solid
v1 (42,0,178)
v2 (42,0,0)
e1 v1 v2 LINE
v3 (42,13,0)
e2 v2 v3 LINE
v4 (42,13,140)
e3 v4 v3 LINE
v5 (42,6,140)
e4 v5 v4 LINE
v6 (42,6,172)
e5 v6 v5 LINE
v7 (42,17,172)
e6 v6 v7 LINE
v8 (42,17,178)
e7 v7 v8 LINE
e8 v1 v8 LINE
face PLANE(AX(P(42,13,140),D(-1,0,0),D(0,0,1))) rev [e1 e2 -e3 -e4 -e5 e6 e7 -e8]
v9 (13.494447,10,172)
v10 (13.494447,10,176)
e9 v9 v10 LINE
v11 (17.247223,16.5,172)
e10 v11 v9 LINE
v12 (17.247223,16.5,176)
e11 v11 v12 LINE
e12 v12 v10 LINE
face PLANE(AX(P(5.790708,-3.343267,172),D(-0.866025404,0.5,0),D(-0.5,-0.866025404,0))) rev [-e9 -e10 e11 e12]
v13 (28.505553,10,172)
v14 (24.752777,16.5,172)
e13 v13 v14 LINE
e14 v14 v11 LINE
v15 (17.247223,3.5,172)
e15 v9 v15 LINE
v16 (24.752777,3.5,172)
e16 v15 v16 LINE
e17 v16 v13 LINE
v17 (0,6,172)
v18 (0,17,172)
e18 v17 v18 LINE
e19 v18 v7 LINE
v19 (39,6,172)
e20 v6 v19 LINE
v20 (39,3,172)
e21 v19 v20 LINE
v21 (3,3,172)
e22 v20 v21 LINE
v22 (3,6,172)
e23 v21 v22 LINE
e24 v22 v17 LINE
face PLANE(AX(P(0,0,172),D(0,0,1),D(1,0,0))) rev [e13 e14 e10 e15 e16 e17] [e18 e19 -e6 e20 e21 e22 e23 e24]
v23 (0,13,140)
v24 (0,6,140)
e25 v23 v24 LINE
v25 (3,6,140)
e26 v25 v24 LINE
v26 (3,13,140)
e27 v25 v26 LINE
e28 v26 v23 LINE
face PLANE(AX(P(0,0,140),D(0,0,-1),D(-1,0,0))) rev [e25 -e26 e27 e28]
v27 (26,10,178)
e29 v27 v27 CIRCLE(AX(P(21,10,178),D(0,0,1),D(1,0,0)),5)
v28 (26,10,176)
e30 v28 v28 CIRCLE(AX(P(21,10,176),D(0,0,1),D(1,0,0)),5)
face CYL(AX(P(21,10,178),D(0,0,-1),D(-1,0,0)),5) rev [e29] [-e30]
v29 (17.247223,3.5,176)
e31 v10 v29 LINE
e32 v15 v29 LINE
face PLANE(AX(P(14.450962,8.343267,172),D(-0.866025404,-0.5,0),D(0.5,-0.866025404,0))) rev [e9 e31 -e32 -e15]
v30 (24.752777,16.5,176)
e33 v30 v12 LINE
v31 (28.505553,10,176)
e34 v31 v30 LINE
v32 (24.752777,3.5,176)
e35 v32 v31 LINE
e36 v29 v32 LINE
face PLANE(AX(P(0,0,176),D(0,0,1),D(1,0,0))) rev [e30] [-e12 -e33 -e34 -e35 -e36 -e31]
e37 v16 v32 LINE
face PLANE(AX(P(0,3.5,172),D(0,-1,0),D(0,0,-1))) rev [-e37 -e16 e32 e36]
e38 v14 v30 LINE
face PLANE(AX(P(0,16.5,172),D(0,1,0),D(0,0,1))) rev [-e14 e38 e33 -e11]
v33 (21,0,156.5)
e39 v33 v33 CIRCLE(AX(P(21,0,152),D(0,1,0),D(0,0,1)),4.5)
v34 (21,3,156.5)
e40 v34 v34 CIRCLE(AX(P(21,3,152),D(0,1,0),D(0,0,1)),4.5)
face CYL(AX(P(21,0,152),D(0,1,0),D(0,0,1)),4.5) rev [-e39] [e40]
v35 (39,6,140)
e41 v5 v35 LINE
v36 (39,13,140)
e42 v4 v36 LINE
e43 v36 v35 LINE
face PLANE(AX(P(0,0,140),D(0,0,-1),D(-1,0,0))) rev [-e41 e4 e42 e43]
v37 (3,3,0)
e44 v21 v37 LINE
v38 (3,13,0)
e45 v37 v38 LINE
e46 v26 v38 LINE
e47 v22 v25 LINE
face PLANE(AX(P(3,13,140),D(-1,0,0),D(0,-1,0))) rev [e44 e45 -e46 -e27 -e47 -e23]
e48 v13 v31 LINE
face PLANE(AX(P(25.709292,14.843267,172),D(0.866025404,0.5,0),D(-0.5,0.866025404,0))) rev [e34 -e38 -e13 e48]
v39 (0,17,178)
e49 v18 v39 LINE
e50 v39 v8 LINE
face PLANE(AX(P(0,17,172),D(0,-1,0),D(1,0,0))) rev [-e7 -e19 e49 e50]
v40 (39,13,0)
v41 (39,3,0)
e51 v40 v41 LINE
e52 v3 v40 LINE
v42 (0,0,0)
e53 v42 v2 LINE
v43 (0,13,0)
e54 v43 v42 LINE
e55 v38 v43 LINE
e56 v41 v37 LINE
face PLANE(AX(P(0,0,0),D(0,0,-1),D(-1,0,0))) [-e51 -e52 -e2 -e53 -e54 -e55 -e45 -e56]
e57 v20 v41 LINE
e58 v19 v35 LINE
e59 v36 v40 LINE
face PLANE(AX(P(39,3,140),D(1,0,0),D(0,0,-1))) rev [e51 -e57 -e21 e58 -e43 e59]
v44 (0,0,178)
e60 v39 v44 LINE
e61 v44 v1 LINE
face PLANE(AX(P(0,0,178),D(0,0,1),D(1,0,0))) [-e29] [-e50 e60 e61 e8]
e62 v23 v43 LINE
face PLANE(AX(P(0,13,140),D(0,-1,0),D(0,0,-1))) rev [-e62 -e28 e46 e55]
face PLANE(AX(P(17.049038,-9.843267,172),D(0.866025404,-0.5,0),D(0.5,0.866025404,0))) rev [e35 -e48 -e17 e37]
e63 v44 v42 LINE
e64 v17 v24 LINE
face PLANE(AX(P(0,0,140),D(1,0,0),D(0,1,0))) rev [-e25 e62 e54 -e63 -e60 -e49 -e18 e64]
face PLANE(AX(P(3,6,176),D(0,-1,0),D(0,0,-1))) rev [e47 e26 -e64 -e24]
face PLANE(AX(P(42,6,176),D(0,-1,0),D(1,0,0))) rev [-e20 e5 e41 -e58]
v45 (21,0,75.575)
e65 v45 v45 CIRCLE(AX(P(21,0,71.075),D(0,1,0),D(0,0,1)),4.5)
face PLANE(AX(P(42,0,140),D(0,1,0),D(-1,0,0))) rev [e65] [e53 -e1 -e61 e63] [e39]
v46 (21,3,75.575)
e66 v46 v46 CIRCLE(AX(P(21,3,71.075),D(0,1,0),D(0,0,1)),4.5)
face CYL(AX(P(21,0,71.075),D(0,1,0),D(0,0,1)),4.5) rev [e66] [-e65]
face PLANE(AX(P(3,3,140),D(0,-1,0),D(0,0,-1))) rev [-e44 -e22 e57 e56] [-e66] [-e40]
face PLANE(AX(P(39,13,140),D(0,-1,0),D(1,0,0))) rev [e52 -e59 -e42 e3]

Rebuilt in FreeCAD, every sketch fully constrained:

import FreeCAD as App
import Part
import Sketcher
from FreeCAD import Vector
Q = App.Units.Quantity


def add_polygon(sketch, points):
    """Adds a closed chain of lines whose ends are joined by coincident constraints."""
    first, n = sketch.GeometryCount, len(points)
    for a, b in zip(points, points[1:] + points[:1]):
        sketch.addGeometry(Part.LineSegment(App.Vector(*a, 0), App.Vector(*b, 0)), False)
    for i in range(n):
        sketch.addConstraint(Sketcher.Constraint("Coincident", first + i, 2, first + (i + 1) % n, 1))

doc = App.newDocument("Part")
body = doc.addObject("PartDesign::Body", "Body")

# Sketch on XY plane
sketch1 = body.newObject("Sketcher::SketchObject", "Sketch")
sketch1.AttachmentSupport = (doc.getObject("XY_Plane"), [""])
sketch1.MapMode = "FlatFace"
add_polygon(sketch1, [(0, 13), (0, 0), (42, 0), (42, 13), (39, 13), (39, 3), (3, 3), (3, 13)])  # lines 0-7
sketch1.addConstraint([
    Sketcher.Constraint("Vertical", 0),
    Sketcher.Constraint("Horizontal", 1),
    Sketcher.Constraint("Vertical", 2),
    Sketcher.Constraint("Horizontal", 3),
    Sketcher.Constraint("Vertical", 4),
    Sketcher.Constraint("Horizontal", 5),
    Sketcher.Constraint("Vertical", 6),
    Sketcher.Constraint("Horizontal", 7),
    Sketcher.Constraint("Coincident", 0, 2, -1, 1),
    Sketcher.Constraint("Horizontal", 3, 2, 6, 2),
    Sketcher.Constraint("Equal", 3, 7),
    Sketcher.Constraint("DistanceX", 1, 1, 1, 2, Q("42 mm")),
    Sketcher.Constraint("DistanceX", 3, 2, 3, 1, Q("3 mm")),
    Sketcher.Constraint("DistanceY", 0, 2, 0, 1, Q("13 mm")),
    Sketcher.Constraint("DistanceY", 4, 2, 4, 1, Q("10 mm")),
])
pad1 = body.newObject("PartDesign::Pad", "Pad")
pad1.Profile = sketch1
pad1.Length = 140

# Sketch on XY plane
sketch2 = body.newObject("Sketcher::SketchObject", "Sketch001")
sketch2.AttachmentSupport = (doc.getObject("XY_Plane"), [""])
sketch2.MapMode = "FlatFace"
sketch2.AttachmentOffset = App.Placement(Vector(0, 0, 140), App.Rotation())
add_polygon(sketch2, [(0, 0), (42, 0), (42, 6), (39, 6), (39, 3), (3, 3), (3, 6), (0, 6)])  # lines 0-7
sketch2.addConstraint([
    Sketcher.Constraint("Horizontal", 0),
    Sketcher.Constraint("Vertical", 1),
    Sketcher.Constraint("Horizontal", 2),
    Sketcher.Constraint("Vertical", 3),
    Sketcher.Constraint("Horizontal", 4),
    Sketcher.Constraint("Vertical", 5),
    Sketcher.Constraint("Horizontal", 6),
    Sketcher.Constraint("Vertical", 7),
    Sketcher.Constraint("Coincident", 7, 2, -1, 1),
    Sketcher.Constraint("Horizontal", 2, 2, 5, 2),
    Sketcher.Constraint("Equal", 2, 6),
    Sketcher.Constraint("Equal", 6, 3),
    Sketcher.Constraint("DistanceX", 0, 1, 0, 2, Q("42 mm")),
    Sketcher.Constraint("DistanceX", 2, 2, 2, 1, Q("3 mm")),
    Sketcher.Constraint("DistanceY", 1, 1, 1, 2, Q("6 mm")),
])
pad2 = body.newObject("PartDesign::Pad", "Pad001")
pad2.Profile = sketch2
pad2.Length = 36

# Sketch on XY plane
sketch3 = body.newObject("Sketcher::SketchObject", "Sketch002")
sketch3.AttachmentSupport = (doc.getObject("XY_Plane"), [""])
sketch3.MapMode = "FlatFace"
sketch3.AttachmentOffset = App.Placement(Vector(0, 0, 176), App.Rotation())
add_polygon(sketch3, [(0, 17), (0, 6), (3, 6), (3, 3), (39, 3), (39, 6), (42, 6), (42, 17)])  # lines 0-7
add_polygon(sketch3, [(17.2, 16.5), (24.8, 16.5), (28.5, 10), (24.8, 3.5), (17.2, 3.5), (13.5, 10)])  # lines 8-13
sketch3.addConstraint([
    Sketcher.Constraint("Vertical", 0),
    Sketcher.Constraint("Horizontal", 1),
    Sketcher.Constraint("Vertical", 2),
    Sketcher.Constraint("Horizontal", 3),
    Sketcher.Constraint("Vertical", 4),
    Sketcher.Constraint("Horizontal", 5),
    Sketcher.Constraint("Vertical", 6),
    Sketcher.Constraint("Horizontal", 7),
    Sketcher.Constraint("Horizontal", 8),
    Sketcher.Constraint("Horizontal", 11),
    Sketcher.Constraint("PointOnObject", 0, 2, -2),
    Sketcher.Constraint("Parallel", 9, 12),
    Sketcher.Constraint("Parallel", 10, 13),
    Sketcher.Constraint("Horizontal", 1, 2, 4, 2),
    Sketcher.Constraint("Horizontal", 9, 2, 12, 2),
    Sketcher.Constraint("Vertical", 8, 2, 10, 2),
    Sketcher.Constraint("Vertical", 11, 2, 13, 2),
    Sketcher.Constraint("Equal", 1, 5),
    Sketcher.Constraint("Equal", 5, 2),
    Sketcher.Constraint("DistanceX", 1, 1, 1, 2, Q("3 mm")),
    Sketcher.Constraint("DistanceX", 3, 1, 3, 2, Q("36 mm")),
    Sketcher.Constraint("DistanceY", 0, 2, 0, 1, Q("11 mm")),
    Sketcher.Constraint("Angle", 9, Q("-60 deg")),
    Sketcher.Constraint("DistanceY", -1, 1, 0, 2, Q("6 mm")),
    Sketcher.Constraint("DistanceY", -1, 1, 9, 2, Q("10 mm")),
    Sketcher.Constraint("DistanceY", 10, 2, 8, 2, Q("13 mm")),
    Sketcher.Constraint("DistanceX", 8, 1, 8, 2, Q("7.505553 mm")),
    Sketcher.Constraint("DistanceX", -1, 1, 8, 2, Q("24.752777 mm")),
])
pad3 = body.newObject("PartDesign::Pad", "Pad002")
pad3.Profile = sketch3
pad3.Length = 4
pad3.Reversed = True

# Sketch on XY plane
sketch4 = body.newObject("Sketcher::SketchObject", "Sketch003")
sketch4.AttachmentSupport = (doc.getObject("XY_Plane"), [""])
sketch4.MapMode = "FlatFace"
sketch4.AttachmentOffset = App.Placement(Vector(0, 0, 176), App.Rotation())
add_polygon(sketch4, [(0, 0), (42, 0), (42, 17), (0, 17)])  # lines 0-3
sketch4.addGeometry(Part.Circle(Vector(21, 10, 0), Vector(0, 0, 1), 5), False)  # 4
sketch4.addConstraint([
    Sketcher.Constraint("Horizontal", 0),
    Sketcher.Constraint("Vertical", 1),
    Sketcher.Constraint("Horizontal", 2),
    Sketcher.Constraint("Vertical", 3),
    Sketcher.Constraint("Coincident", 3, 2, -1, 1),
    Sketcher.Constraint("Diameter", 4, Q("10 mm")),
    Sketcher.Constraint("DistanceX", 0, 1, 0, 2, Q("42 mm")),
    Sketcher.Constraint("DistanceY", 1, 1, 1, 2, Q("17 mm")),
    Sketcher.Constraint("DistanceX", -1, 1, 4, 3, Q("21 mm")),
    Sketcher.Constraint("DistanceY", -1, 1, 4, 3, Q("10 mm")),
])
pad4 = body.newObject("PartDesign::Pad", "Pad003")
pad4.Profile = sketch4
pad4.Length = 2

# Sketch on XZ plane
sketch5 = body.newObject("Sketcher::SketchObject", "Sketch004")
sketch5.AttachmentSupport = (doc.getObject("XZ_Plane"), [""])
sketch5.MapMode = "FlatFace"
sketch5.AttachmentOffset = App.Placement(Vector(0, 0, -3), App.Rotation())
sketch5.addGeometry([
    Part.Circle(Vector(21, 152, 0), Vector(0, 0, 1), 4.5),
    Part.Circle(Vector(21, 71.1, 0), Vector(0, 0, 1), 4.5),
], False)
sketch5.addConstraint([
    Sketcher.Constraint("Equal", 0, 1),
    Sketcher.Constraint("Vertical", 0, 3, 1, 3),
    Sketcher.Constraint("Diameter", 0, Q("9 mm")),
    Sketcher.Constraint("DistanceX", -1, 1, 0, 3, Q("21 mm")),
    Sketcher.Constraint("DistanceY", -1, 1, 0, 3, Q("152 mm")),
    Sketcher.Constraint("DistanceY", -1, 1, 1, 3, Q("71.075 mm")),
])
pocket1 = body.newObject("PartDesign::Pocket", "Pocket")
pocket1.Profile = sketch5
pocket1.Type = "ThroughAll"
pocket1.Reversed = True

doc.recompute()
